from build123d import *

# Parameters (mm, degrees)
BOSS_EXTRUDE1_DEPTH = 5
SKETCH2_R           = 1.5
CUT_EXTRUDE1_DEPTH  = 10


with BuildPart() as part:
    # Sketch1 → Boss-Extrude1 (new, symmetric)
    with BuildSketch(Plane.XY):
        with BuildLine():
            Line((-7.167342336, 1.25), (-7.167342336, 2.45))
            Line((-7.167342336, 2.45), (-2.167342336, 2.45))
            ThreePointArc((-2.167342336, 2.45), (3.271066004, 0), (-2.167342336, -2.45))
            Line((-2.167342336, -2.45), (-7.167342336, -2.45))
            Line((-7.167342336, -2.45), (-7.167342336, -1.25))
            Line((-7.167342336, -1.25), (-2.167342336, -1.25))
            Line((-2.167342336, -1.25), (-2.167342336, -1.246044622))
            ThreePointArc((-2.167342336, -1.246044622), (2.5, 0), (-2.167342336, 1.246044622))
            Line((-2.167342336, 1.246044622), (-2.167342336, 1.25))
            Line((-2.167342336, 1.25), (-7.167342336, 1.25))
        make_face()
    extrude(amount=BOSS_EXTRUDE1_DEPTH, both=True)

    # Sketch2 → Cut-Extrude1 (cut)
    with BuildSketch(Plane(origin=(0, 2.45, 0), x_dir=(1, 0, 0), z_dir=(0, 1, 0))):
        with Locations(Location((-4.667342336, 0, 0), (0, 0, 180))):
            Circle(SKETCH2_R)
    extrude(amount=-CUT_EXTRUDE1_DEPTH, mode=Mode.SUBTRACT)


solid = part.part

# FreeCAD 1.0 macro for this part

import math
import FreeCAD as App
import Part
import Sketcher
Q = App.Units.Quantity

doc = App.newDocument("Part")
params = doc.addObject("Spreadsheet::Sheet", "Params")
for row, (alias, value) in enumerate([
    ("sketch1_radius", "2.5 mm"),
    ("sketch1_width", "5 mm"),
    ("sketch1_height", "1.2 mm"),
    ("pad1_length", "10 mm"),
    ("sketch2_diameter", "3 mm"),
    ("pocket1_length", "10 mm"),
], start=1):
    params.set(f"A{row}", alias)
    params.set(f"B{row}", "=" + value)
    params.setAlias(f"B{row}", alias)

body = doc.addObject("PartDesign::Body", "Body")

sketch1 = body.newObject("Sketcher::SketchObject", "Sketch")
sketch1.AttachmentSupport = (doc.getObject("XY_Plane"), [""])
sketch1.MapMode = "FlatFace"
sketch1.addGeometry(Part.LineSegment(App.Vector(-7.167342, 2.45, 0), App.Vector(-7.167342, 1.25, 0)), False)
sketch1.addGeometry(Part.LineSegment(App.Vector(-7.167342, 1.25, 0), App.Vector(-2.167342, 1.25, 0)), False)
sketch1.addGeometry(Part.LineSegment(App.Vector(-2.167342, 1.25, 0), App.Vector(-2.167342, 1.246045, 0)), False)
sketch1.addGeometry(Part.ArcOfCircle(Part.Circle(App.Vector(0, 0, 0), App.Vector(0, 0, 1), 2.5), math.radians(-150.104619), math.radians(150.104619)), False)
sketch1.addGeometry(Part.LineSegment(App.Vector(-2.167342, -1.246045, 0), App.Vector(-2.167342, -1.25, 0)), False)
sketch1.addGeometry(Part.LineSegment(App.Vector(-2.167342, -1.25, 0), App.Vector(-7.167342, -1.25, 0)), False)
sketch1.addGeometry(Part.LineSegment(App.Vector(-7.167342, -1.25, 0), App.Vector(-7.167342, -2.45, 0)), False)
sketch1.addGeometry(Part.LineSegment(App.Vector(-7.167342, -2.45, 0), App.Vector(-2.167342, -2.45, 0)), False)
sketch1.addGeometry(Part.ArcOfCircle(Part.Circle(App.Vector(0, 0, 0), App.Vector(0, 0, 1), 3.271066), math.radians(-131.496923), math.radians(131.496923)), False)
sketch1.addGeometry(Part.LineSegment(App.Vector(-2.167342, 2.45, 0), App.Vector(-7.167342, 2.45, 0)), False)
sketch1.addConstraint(Sketcher.Constraint("Coincident", 0, 2, 1, 1))
sketch1.addConstraint(Sketcher.Constraint("Coincident", 1, 2, 2, 1))
sketch1.addConstraint(Sketcher.Constraint("Coincident", 2, 2, 3, 2))
sketch1.addConstraint(Sketcher.Constraint("Coincident", 3, 1, 4, 1))
sketch1.addConstraint(Sketcher.Constraint("Coincident", 4, 2, 5, 1))
sketch1.addConstraint(Sketcher.Constraint("Coincident", 5, 2, 6, 1))
sketch1.addConstraint(Sketcher.Constraint("Coincident", 6, 2, 7, 1))
sketch1.addConstraint(Sketcher.Constraint("Coincident", 7, 2, 8, 1))
sketch1.addConstraint(Sketcher.Constraint("Coincident", 8, 2, 9, 1))
sketch1.addConstraint(Sketcher.Constraint("Coincident", 9, 2, 0, 1))
sketch1.addConstraint(Sketcher.Constraint("Vertical", 0))
sketch1.addConstraint(Sketcher.Constraint("Horizontal", 1))
sketch1.addConstraint(Sketcher.Constraint("Vertical", 2))
sketch1.addConstraint(Sketcher.Constraint("Vertical", 4))
sketch1.addConstraint(Sketcher.Constraint("Horizontal", 5))
sketch1.addConstraint(Sketcher.Constraint("Vertical", 6))
sketch1.addConstraint(Sketcher.Constraint("Horizontal", 7))
sketch1.addConstraint(Sketcher.Constraint("Horizontal", 9))
sketch1.addConstraint(Sketcher.Constraint("Coincident", 3, 3, -1, 1))
sketch1.addConstraint(Sketcher.Constraint("Coincident", 8, 3, -1, 1))
sketch1.addConstraint(Sketcher.Constraint("Symmetric", 1, 2, 4, 2, -1))
sketch1.addConstraint(Sketcher.Constraint("Symmetric", 6, 2, 9, 2, -1))
sketch1.addConstraint(Sketcher.Constraint("Vertical", 4, 2, 7, 2))
sketch1.addConstraint(Sketcher.Constraint("Radius", 3, Q("2.5 mm")))
sketch1.addConstraint(Sketcher.Constraint("DistanceX", 1, 1, 1, 2, Q("5 mm")))
sketch1.addConstraint(Sketcher.Constraint("DistanceY", 0, 2, 0, 1, Q("1.2 mm")))
sketch1.addConstraint(Sketcher.Constraint("DistanceY", 4, 2, 1, 2, Q("2.5 mm")))
sketch1.addConstraint(Sketcher.Constraint("Radius", 8, Q("3.271066 mm")))
sketch1.setExpression("Constraints[23]", "Params.sketch1_radius")
sketch1.setExpression("Constraints[24]", "Params.sketch1_width")
sketch1.setExpression("Constraints[25]", "Params.sketch1_height")
pad1 = body.newObject("PartDesign::Pad", "Pad")
pad1.Profile = sketch1
pad1.setExpression("Length", "Params.pad1_length")
pad1.Midplane = True

sketch2 = body.newObject("Sketcher::SketchObject", "Sketch001")
sketch2.AttachmentSupport = (doc.getObject("XZ_Plane"), [""])
sketch2.MapMode = "FlatFace"
sketch2.AttachmentOffset = App.Placement(App.Vector(0, 0, -2.45), App.Rotation())
sketch2.addGeometry(Part.Circle(App.Vector(-4.667342, 0, 0), App.Vector(0, 0, 1), 1.5), False)
sketch2.addConstraint(Sketcher.Constraint("PointOnObject", 0, 3, -1))
sketch2.addConstraint(Sketcher.Constraint("Diameter", 0, Q("3 mm")))
sketch2.addConstraint(Sketcher.Constraint("DistanceX", 0, 3, -1, 1, Q("4.667342 mm")))
sketch2.setExpression("Constraints[1]", "Params.sketch2_diameter")
pocket1 = body.newObject("PartDesign::Pocket", "Pocket")
pocket1.Profile = sketch2
pocket1.setExpression("Length", "Params.pocket1_length")
pocket1.Reversed = True

doc.recompute()
